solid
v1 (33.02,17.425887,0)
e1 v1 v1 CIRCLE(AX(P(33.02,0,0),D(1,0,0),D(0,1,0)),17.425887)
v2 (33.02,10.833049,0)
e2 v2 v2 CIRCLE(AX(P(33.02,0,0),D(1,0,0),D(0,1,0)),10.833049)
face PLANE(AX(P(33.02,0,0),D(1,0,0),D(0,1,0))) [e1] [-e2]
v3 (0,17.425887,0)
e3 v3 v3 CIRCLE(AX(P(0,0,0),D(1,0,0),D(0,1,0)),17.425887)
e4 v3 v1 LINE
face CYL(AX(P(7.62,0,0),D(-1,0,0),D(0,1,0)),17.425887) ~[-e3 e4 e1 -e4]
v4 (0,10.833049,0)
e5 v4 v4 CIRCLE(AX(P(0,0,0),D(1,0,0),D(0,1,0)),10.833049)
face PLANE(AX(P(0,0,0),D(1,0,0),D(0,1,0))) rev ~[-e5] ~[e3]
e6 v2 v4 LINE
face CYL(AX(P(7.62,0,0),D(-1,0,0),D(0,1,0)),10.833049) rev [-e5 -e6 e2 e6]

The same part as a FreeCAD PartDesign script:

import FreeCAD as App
import Part
import Sketcher
Q = App.Units.Quantity

doc = App.newDocument("Part")
body = doc.addObject("PartDesign::Body", "Body")

sketch1 = body.newObject("Sketcher::SketchObject", "Sketch")
sketch1.AttachmentSupport = (doc.getObject("YZ_Plane"), [""])
sketch1.MapMode = "FlatFace"
sketch1.addGeometry([
    Part.Circle(App.Vector(0, 0, 0), App.Vector(0, 0, 1), 17),
    Part.Circle(App.Vector(0, 0, 0), App.Vector(0, 0, 1), 11),
], False)
sketch1.addConstraint([
    Sketcher.Constraint("Coincident", 0, 3, -1, 1),
    Sketcher.Constraint("Coincident", 1, 3, -1, 1),
    Sketcher.Constraint("Diameter", 1, Q("21.666098 mm")),
    Sketcher.Constraint("Diameter", 0, Q("34.851774 mm")),
])
pad1 = body.newObject("PartDesign::Pad", "Pad")
pad1.Profile = sketch1
pad1.Length = Q("0.3 in")

sketch2 = body.newObject("Sketcher::SketchObject", "Sketch001")
sketch2.AttachmentSupport = (doc.getObject("YZ_Plane"), [""])
sketch2.MapMode = "FlatFace"
sketch2.AttachmentOffset = App.Placement(App.Vector(0, 0, 0.3 * 25.4), App.Rotation())
sketch2.addGeometry([
    Part.Circle(App.Vector(0, 0, 0), App.Vector(0, 0, 1), 17),
    Part.Circle(App.Vector(0, 0, 0), App.Vector(0, 0, 1), 11),
], False)
sketch2.addConstraint([
    Sketcher.Constraint("Coincident", 0, 3, -1, 1),
    Sketcher.Constraint("Coincident", 1, 3, -1, 1),
    Sketcher.Constraint("Diameter", 1, Q("21.666098 mm")),
    Sketcher.Constraint("Diameter", 0, Q("34.851774 mm")),
])
pad2 = body.newObject("PartDesign::Pad", "Pad001")
pad2.Profile = sketch2
pad2.Length = Q("1 in")

doc.recompute()
